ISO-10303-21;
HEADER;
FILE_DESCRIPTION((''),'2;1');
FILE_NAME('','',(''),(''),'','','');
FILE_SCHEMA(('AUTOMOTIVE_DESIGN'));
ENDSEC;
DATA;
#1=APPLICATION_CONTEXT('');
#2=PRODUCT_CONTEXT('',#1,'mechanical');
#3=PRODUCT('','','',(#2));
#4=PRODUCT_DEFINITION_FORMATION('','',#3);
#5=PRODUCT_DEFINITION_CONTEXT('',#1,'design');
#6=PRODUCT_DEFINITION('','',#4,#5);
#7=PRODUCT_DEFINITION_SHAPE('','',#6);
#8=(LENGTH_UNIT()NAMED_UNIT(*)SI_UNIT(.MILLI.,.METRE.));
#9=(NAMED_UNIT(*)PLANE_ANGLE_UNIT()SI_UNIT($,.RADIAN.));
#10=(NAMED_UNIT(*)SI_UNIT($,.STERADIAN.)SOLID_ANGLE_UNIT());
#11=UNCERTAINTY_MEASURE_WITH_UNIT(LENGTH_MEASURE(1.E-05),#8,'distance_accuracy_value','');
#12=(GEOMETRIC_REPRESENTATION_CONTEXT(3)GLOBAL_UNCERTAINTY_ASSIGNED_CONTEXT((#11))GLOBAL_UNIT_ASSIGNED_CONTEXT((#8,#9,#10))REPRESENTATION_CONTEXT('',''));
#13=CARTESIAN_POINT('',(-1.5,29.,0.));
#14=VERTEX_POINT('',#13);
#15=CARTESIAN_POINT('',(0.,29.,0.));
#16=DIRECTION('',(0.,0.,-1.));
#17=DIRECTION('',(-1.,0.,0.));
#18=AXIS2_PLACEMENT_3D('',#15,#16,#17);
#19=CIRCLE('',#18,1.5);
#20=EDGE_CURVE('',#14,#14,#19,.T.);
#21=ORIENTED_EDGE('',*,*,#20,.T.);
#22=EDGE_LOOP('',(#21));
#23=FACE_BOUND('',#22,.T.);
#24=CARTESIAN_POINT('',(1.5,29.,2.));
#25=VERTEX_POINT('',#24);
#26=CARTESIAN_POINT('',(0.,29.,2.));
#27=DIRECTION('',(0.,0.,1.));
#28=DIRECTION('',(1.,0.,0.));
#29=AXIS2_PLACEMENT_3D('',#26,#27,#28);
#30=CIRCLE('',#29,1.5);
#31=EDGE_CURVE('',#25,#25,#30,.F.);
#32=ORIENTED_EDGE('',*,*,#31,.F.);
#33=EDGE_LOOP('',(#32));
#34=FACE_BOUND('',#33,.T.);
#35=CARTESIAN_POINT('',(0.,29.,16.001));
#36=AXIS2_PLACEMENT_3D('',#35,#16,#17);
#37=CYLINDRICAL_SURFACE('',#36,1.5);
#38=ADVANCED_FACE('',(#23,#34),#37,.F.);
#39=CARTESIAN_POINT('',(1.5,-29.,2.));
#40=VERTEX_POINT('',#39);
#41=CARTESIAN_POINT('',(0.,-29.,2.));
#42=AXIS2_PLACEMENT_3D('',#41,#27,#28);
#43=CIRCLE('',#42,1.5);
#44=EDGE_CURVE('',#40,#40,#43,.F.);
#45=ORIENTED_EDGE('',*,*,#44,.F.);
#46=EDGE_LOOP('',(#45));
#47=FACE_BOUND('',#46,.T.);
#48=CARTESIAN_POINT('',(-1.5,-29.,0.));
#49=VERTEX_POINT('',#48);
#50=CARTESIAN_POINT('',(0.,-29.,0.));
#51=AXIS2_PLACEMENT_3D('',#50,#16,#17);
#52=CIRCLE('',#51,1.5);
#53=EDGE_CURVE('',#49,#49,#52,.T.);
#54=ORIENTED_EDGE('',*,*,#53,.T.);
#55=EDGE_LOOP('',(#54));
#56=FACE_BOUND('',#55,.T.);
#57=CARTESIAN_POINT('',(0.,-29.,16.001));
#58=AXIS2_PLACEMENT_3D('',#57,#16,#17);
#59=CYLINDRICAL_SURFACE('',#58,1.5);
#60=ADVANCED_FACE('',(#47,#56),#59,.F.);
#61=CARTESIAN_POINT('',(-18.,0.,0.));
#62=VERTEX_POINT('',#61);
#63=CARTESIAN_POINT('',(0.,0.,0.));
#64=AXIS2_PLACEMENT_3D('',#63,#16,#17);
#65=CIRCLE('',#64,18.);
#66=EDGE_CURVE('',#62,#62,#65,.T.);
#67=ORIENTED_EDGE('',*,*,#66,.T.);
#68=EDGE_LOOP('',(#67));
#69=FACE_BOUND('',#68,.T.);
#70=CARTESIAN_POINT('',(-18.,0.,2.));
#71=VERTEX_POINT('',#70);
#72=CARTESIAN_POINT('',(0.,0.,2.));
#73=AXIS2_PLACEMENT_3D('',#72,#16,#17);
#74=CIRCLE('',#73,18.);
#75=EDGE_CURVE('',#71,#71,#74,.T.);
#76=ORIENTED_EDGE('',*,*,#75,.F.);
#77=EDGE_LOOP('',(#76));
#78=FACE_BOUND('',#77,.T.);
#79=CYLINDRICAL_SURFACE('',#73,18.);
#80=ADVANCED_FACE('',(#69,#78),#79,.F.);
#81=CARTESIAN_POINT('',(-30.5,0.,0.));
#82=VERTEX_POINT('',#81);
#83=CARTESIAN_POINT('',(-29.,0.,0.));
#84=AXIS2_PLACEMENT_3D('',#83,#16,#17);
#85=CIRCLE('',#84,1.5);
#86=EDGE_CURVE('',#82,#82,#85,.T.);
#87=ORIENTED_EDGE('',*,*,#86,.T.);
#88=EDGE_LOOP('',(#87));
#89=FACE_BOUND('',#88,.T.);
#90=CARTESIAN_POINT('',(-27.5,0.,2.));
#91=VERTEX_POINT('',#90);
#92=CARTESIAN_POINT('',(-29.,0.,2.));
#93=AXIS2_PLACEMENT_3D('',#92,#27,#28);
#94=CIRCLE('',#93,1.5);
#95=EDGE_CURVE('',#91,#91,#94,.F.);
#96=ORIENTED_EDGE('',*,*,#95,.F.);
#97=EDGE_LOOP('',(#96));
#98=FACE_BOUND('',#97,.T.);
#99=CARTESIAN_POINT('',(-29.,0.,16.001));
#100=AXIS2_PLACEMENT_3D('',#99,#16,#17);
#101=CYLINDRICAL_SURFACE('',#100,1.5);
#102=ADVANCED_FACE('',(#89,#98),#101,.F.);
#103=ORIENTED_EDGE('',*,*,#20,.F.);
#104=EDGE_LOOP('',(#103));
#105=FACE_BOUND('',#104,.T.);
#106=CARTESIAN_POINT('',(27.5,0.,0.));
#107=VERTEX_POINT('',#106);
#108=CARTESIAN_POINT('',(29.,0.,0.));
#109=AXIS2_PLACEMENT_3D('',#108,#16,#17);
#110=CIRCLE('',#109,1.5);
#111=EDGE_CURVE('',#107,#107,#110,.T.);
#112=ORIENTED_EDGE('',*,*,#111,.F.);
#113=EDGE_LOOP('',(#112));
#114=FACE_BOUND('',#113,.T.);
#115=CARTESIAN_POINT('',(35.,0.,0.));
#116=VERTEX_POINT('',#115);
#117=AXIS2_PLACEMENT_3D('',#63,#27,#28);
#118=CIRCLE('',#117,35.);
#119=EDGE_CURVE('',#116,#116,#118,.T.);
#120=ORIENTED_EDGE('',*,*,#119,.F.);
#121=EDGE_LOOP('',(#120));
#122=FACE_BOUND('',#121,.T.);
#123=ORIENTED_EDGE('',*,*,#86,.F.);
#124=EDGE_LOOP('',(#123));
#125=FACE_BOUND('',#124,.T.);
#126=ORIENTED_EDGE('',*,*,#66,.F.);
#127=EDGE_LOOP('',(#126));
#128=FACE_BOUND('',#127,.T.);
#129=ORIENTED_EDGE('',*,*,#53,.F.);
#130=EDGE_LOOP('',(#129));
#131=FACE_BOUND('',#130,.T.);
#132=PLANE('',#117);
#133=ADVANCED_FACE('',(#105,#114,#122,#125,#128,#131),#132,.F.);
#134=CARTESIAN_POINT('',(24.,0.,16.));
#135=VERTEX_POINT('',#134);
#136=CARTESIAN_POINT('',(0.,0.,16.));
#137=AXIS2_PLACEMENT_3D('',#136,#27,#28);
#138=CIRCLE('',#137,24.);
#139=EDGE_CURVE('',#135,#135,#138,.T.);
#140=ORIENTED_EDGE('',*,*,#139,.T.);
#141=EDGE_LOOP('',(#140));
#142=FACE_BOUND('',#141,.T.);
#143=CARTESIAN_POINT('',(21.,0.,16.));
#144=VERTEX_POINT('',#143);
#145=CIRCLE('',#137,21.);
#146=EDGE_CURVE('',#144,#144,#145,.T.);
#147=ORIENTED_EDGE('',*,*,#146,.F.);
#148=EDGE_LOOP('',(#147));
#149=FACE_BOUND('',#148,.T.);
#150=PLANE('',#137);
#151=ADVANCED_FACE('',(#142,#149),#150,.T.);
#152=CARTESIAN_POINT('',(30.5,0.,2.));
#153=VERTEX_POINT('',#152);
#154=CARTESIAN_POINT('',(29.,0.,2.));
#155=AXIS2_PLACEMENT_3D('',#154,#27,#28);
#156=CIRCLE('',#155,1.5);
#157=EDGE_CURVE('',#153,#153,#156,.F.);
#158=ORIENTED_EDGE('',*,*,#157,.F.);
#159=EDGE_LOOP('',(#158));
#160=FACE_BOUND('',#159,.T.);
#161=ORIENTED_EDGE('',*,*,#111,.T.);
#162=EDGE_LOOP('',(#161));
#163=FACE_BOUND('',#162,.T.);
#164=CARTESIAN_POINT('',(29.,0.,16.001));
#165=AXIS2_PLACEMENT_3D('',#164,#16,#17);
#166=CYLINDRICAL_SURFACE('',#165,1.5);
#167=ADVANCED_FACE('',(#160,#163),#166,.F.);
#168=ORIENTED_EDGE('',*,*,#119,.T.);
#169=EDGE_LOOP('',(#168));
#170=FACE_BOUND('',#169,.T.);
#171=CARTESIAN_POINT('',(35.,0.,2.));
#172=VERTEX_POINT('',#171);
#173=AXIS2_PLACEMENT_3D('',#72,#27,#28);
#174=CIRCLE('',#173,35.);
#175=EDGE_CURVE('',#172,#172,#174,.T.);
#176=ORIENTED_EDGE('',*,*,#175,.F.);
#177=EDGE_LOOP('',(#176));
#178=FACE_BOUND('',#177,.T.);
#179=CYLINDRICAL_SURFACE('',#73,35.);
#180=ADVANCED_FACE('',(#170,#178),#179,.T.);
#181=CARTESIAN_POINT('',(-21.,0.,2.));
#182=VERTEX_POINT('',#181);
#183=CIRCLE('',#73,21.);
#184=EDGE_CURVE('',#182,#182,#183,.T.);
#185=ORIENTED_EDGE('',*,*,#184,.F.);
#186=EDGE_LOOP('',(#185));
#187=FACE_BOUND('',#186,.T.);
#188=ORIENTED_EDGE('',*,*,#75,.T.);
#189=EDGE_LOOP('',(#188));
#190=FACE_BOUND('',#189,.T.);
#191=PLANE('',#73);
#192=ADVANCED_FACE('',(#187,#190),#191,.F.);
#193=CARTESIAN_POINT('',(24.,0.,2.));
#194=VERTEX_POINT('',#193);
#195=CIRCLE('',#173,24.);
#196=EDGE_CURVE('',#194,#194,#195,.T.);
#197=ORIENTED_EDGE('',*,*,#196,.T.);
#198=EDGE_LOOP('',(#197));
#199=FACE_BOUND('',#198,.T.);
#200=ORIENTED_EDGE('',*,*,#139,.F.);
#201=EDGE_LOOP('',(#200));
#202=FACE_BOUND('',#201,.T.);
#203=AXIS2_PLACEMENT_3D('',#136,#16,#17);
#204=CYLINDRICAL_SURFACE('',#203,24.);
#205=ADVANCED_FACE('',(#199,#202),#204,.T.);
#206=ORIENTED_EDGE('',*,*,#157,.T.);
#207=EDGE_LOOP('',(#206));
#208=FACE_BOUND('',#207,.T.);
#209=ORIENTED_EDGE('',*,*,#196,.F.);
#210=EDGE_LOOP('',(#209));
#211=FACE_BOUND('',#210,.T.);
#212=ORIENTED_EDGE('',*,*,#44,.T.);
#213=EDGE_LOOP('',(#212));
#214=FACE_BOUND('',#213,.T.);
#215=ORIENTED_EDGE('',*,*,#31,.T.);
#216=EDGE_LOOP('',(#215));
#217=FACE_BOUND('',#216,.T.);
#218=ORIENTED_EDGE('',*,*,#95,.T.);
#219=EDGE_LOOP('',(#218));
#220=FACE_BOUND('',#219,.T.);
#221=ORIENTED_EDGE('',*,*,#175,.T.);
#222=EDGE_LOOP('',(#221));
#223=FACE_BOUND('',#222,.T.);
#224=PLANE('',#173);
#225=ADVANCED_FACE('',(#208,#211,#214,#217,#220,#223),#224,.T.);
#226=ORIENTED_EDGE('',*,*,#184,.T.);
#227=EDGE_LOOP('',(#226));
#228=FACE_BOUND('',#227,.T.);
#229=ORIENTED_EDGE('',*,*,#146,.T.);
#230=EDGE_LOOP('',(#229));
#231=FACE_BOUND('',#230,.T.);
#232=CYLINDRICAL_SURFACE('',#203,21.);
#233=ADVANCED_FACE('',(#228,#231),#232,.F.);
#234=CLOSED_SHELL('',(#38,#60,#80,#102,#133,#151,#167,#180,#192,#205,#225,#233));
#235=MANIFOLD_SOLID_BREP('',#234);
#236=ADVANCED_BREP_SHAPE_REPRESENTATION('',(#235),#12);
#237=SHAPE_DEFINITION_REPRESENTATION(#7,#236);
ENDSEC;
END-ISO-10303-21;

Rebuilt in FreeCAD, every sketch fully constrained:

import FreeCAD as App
import Part
import Sketcher
from FreeCAD import Vector

doc = App.newDocument("Part")
body = doc.addObject("PartDesign::Body", "Body")

sketch1 = body.newObject("Sketcher::SketchObject", "Sketch")
sketch1.AttachmentSupport = (doc.getObject("XY_Plane"), [""])
sketch1.MapMode = "FlatFace"
sketch1.addGeometry(Part.Circle(Vector(0, 0, 0), Vector(0, 0, 1), 35), False)
sketch1.addConstraint([
    Sketcher.Constraint("Coincident", 0, 3, -1, 1),
    Sketcher.Constraint("Diameter", 0, 70.0),
])
pad1 = body.newObject("PartDesign::Pad", "Pad")
pad1.Profile = sketch1
pad1.Length = 2

sketch2 = body.newObject("Sketcher::SketchObject", "Sketch001")
sketch2.AttachmentSupport = (doc.getObject("XY_Plane"), [""])
sketch2.MapMode = "FlatFace"
sketch2.AttachmentOffset = App.Placement(Vector(0, 0, 2), App.Rotation())
sketch2.addGeometry([
    Part.Circle(Vector(0, 0, 0), Vector(0, 0, 1), 24),
    Part.Circle(Vector(0, 0, 0), Vector(0, 0, 1), 21),
], False)
sketch2.addConstraint([
    Sketcher.Constraint("Coincident", 0, 3, -1, 1),
    Sketcher.Constraint("Coincident", 1, 3, -1, 1),
    Sketcher.Constraint("Diameter", 0, 48.0),
    Sketcher.Constraint("Diameter", 1, 42.0),
])
pad2 = body.newObject("PartDesign::Pad", "Pad001")
pad2.Profile = sketch2
pad2.Length = 14

sketch3 = body.newObject("Sketcher::SketchObject", "Sketch002")
sketch3.AttachmentSupport = (doc.getObject("XY_Plane"), [""])
sketch3.MapMode = "FlatFace"
sketch3.AttachmentOffset = App.Placement(Vector(0, 0, 2), App.Rotation())
sketch3.addGeometry(Part.Circle(Vector(0, 0, 0), Vector(0, 0, 1), 21), False)
sketch3.addConstraint([
    Sketcher.Constraint("Coincident", 0, 3, -1, 1),
    Sketcher.Constraint("Diameter", 0, 42.0),
])
pocket1 = body.newObject("PartDesign::Pocket", "Pocket")
pocket1.Profile = sketch3
pocket1.Length = 10

sketch4 = body.newObject("Sketcher::SketchObject", "Sketch003")
sketch4.AttachmentSupport = (doc.getObject("XY_Plane"), [""])
sketch4.MapMode = "FlatFace"
sketch4.addGeometry(Part.Circle(Vector(-29, 0, 0), Vector(0, 0, 1), 1.5), False)
sketch4.addConstraint([
    Sketcher.Constraint("PointOnObject", 0, 3, -1),
    Sketcher.Constraint("Diameter", 0, 3.0),
    Sketcher.Constraint("DistanceX", 0, 3, -1, 1, 29.0),
])
pocket2 = body.newObject("PartDesign::Pocket", "Pocket001")
pocket2.Profile = sketch4
pocket2.Type = "UpToFirst"
pocket2.Reversed = True

sketch5 = body.newObject("Sketcher::SketchObject", "Sketch004")
sketch5.AttachmentSupport = (doc.getObject("XY_Plane"), [""])
sketch5.MapMode = "FlatFace"
sketch5.addGeometry(Part.Circle(Vector(0, -29, 0), Vector(0, 0, 1), 1.5), False)
sketch5.addConstraint([
    Sketcher.Constraint("PointOnObject", 0, 3, -2),
    Sketcher.Constraint("Diameter", 0, 3.0),
    Sketcher.Constraint("DistanceY", 0, 3, -1, 1, 29.0),
])
pocket3 = body.newObject("PartDesign::Pocket", "Pocket002")
pocket3.Profile = sketch5
pocket3.Type = "UpToFirst"
pocket3.Reversed = True

sketch6 = body.newObject("Sketcher::SketchObject", "Sketch005")
sketch6.AttachmentSupport = (doc.getObject("XY_Plane"), [""])
sketch6.MapMode = "FlatFace"
sketch6.addGeometry(Part.Circle(Vector(29, 0, 0), Vector(0, 0, 1), 1.5), False)
sketch6.addConstraint([
    Sketcher.Constraint("PointOnObject", 0, 3, -1),
    Sketcher.Constraint("Diameter", 0, 3.0),
    Sketcher.Constraint("DistanceX", -1, 1, 0, 3, 29.0),
])
pocket4 = body.newObject("PartDesign::Pocket", "Pocket003")
pocket4.Profile = sketch6
pocket4.Type = "UpToFirst"
pocket4.Reversed = True

sketch7 = body.newObject("Sketcher::SketchObject", "Sketch006")
sketch7.AttachmentSupport = (doc.getObject("XY_Plane"), [""])
sketch7.MapMode = "FlatFace"
sketch7.addGeometry(Part.Circle(Vector(0, 29, 0), Vector(0, 0, 1), 1.5), False)
sketch7.addConstraint([
    Sketcher.Constraint("PointOnObject", 0, 3, -2),
    Sketcher.Constraint("Diameter", 0, 3.0),
    Sketcher.Constraint("DistanceY", -1, 1, 0, 3, 29.0),
])
pocket5 = body.newObject("PartDesign::Pocket", "Pocket004")
pocket5.Profile = sketch7
pocket5.Type = "UpToFirst"
pocket5.Reversed = True

sketch8 = body.newObject("Sketcher::SketchObject", "Sketch007")
sketch8.AttachmentSupport = (doc.getObject("XY_Plane"), [""])
sketch8.MapMode = "FlatFace"
sketch8.addGeometry([
    Part.Circle(Vector(0, 0, 0), Vector(0, 0, 1), 21),
    Part.Circle(Vector(0, 0, 0), Vector(0, 0, 1), 18),
], False)
sketch8.addConstraint([
    Sketcher.Constraint("Coincident", 0, 3, -1, 1),
    Sketcher.Constraint("Coincident", 1, 3, -1, 1),
    Sketcher.Constraint("Diameter", 0, 42.0),
    Sketcher.Constraint("Diameter", 1, 36.0),
])
pad3 = body.newObject("PartDesign::Pad", "Pad002")
pad3.Profile = sketch8
pad3.Length = 2

doc.recompute()
